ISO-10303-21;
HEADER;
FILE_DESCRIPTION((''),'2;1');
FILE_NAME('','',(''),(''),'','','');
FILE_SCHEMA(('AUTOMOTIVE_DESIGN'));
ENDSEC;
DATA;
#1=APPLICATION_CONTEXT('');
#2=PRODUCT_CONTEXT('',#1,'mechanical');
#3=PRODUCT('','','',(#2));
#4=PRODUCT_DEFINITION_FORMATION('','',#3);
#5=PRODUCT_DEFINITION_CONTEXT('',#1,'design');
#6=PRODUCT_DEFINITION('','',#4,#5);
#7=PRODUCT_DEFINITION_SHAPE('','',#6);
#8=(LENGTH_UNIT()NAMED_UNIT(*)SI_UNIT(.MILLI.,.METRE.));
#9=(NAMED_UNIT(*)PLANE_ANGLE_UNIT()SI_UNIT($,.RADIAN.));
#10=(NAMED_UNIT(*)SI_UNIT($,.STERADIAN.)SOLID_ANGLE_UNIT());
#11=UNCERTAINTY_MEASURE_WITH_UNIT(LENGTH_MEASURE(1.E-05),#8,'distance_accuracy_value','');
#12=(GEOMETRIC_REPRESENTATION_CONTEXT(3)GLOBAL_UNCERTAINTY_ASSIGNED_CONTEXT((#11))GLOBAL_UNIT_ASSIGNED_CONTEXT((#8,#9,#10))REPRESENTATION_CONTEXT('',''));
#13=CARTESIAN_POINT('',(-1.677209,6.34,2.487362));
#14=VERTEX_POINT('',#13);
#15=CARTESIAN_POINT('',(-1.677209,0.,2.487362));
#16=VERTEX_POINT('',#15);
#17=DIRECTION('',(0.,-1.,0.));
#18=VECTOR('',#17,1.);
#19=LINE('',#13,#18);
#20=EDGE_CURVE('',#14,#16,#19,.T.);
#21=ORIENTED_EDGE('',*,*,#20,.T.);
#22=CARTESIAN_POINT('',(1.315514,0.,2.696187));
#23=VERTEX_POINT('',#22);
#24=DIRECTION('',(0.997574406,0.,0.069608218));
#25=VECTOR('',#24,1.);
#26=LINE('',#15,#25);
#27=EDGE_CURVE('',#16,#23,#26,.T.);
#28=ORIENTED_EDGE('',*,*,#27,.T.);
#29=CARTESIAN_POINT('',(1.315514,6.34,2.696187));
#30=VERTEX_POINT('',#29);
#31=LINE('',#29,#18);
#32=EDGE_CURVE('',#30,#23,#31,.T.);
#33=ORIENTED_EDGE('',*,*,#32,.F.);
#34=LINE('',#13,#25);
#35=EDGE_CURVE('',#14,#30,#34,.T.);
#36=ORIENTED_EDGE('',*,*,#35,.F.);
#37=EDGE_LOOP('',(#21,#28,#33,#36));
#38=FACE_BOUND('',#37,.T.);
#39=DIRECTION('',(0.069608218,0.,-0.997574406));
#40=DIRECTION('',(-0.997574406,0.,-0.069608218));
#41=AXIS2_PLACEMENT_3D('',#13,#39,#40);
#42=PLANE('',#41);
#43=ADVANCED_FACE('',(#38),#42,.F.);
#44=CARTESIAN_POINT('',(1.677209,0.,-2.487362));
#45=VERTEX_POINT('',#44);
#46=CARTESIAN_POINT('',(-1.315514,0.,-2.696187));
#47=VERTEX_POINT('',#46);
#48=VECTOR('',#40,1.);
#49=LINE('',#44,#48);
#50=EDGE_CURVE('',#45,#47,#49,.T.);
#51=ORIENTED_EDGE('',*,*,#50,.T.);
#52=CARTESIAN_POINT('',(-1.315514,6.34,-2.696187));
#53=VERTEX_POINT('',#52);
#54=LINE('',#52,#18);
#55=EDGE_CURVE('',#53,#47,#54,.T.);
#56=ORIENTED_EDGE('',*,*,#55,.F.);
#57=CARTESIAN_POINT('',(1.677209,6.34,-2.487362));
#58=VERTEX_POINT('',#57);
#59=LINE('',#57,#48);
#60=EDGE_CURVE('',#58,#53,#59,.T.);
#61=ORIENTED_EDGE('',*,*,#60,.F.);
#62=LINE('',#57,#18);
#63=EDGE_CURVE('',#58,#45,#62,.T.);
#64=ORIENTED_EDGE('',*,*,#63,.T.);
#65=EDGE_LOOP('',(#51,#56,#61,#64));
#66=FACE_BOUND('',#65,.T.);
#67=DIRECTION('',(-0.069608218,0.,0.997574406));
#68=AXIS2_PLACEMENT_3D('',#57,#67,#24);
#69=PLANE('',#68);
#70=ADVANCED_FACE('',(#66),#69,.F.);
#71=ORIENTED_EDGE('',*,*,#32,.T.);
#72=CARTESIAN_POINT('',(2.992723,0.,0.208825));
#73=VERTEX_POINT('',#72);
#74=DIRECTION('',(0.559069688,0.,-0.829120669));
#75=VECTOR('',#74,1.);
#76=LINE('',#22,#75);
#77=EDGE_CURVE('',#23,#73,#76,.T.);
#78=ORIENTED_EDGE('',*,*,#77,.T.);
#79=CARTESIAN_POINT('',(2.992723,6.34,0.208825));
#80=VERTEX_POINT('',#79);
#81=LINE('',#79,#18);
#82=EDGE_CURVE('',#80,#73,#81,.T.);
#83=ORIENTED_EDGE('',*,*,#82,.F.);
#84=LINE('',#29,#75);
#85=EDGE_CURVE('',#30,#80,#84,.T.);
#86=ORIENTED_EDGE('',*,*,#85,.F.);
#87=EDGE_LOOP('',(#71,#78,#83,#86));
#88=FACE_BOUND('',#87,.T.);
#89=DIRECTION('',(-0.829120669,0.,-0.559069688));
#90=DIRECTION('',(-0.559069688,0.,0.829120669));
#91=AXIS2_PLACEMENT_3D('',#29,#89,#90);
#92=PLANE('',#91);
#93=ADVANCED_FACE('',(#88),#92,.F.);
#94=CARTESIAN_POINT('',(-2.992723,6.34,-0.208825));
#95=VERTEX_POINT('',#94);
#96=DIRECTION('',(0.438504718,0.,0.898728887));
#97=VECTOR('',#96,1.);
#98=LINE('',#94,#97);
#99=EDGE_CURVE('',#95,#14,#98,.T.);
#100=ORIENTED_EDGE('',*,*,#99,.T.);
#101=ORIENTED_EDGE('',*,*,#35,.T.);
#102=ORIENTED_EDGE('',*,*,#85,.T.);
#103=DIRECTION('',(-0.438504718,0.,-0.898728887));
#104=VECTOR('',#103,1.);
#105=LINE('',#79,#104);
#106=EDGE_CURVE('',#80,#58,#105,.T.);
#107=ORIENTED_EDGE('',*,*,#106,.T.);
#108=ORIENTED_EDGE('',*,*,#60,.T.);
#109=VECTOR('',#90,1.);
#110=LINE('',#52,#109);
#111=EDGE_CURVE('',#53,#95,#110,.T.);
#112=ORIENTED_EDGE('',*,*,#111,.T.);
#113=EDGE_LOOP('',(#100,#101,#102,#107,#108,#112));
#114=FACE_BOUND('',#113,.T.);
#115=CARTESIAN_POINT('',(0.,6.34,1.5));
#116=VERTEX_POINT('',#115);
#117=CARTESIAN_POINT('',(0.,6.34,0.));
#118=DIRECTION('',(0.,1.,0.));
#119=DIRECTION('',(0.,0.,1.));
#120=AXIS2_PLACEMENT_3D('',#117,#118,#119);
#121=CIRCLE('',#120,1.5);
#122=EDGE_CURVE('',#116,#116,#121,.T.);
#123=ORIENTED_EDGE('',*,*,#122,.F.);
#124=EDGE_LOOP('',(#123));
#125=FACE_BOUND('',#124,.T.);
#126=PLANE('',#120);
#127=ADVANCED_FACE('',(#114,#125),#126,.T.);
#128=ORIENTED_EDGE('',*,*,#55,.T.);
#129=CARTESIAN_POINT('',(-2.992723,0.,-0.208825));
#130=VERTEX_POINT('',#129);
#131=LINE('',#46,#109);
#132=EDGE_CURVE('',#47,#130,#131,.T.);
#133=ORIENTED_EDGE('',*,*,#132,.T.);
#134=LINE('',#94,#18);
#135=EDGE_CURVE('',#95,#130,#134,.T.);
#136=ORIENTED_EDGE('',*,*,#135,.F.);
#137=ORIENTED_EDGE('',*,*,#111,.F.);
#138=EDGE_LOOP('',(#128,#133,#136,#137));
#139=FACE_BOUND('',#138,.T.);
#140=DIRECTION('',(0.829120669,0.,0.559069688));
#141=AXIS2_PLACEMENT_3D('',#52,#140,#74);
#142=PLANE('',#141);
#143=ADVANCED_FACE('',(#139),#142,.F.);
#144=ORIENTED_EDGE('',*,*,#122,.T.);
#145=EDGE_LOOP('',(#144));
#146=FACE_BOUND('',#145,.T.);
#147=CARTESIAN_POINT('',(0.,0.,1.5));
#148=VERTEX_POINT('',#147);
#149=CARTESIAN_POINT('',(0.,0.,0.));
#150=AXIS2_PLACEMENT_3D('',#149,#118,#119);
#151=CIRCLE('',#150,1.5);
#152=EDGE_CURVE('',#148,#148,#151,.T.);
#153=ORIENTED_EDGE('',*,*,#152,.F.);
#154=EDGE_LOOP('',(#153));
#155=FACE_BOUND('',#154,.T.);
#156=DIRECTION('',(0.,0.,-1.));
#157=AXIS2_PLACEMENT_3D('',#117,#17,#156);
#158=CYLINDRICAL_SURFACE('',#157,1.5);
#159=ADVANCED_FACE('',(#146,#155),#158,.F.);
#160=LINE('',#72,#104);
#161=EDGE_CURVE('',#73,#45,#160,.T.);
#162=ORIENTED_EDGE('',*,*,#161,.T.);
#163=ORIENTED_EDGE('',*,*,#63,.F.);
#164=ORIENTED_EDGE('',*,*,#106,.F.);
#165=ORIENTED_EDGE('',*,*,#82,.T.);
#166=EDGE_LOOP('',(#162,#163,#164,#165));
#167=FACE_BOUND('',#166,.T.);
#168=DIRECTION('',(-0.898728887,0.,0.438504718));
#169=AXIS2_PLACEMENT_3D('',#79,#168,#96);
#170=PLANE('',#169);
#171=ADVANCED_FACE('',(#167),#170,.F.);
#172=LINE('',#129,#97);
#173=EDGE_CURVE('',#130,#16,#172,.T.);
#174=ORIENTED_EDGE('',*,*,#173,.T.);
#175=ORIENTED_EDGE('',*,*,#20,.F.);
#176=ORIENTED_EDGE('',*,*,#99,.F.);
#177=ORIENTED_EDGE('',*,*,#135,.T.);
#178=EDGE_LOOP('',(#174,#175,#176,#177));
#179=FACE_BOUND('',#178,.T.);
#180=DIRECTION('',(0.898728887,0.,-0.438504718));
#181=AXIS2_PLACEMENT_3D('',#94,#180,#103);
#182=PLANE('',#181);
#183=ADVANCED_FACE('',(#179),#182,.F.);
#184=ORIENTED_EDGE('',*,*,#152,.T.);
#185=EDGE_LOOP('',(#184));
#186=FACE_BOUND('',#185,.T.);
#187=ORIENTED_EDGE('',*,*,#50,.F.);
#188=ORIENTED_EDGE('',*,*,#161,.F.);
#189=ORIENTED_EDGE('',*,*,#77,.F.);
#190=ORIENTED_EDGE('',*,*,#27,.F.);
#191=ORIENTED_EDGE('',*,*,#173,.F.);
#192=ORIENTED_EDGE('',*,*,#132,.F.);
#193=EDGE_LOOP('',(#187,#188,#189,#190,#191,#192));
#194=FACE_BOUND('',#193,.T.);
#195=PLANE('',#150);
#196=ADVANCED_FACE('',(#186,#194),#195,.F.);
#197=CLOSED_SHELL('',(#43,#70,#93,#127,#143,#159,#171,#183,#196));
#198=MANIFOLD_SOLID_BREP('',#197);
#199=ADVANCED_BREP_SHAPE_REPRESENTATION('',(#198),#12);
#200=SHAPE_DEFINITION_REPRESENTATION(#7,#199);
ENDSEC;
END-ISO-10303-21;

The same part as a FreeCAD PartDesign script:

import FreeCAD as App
import Part
import Sketcher


def add_polygon(sketch, points):
    """Adds a closed chain of lines whose ends are joined by coincident constraints."""
    first, n = sketch.GeometryCount, len(points)
    for a, b in zip(points, points[1:] + points[:1]):
        sketch.addGeometry(Part.LineSegment(App.Vector(*a, 0), App.Vector(*b, 0)), False)
    for i in range(n):
        sketch.addConstraint(Sketcher.Constraint("Coincident", first + i, 2, first + (i + 1) % n, 1))

doc = App.newDocument("Part")
body = doc.addObject("PartDesign::Body", "Body")

# Sketch on XZ plane
sketch1 = doc.addObject("Sketcher::SketchObject", "Sketch")
body.addObject(sketch1)
sketch1.AttachmentSupport = (doc.XZ_Plane, [""])
sketch1.MapMode = "FlatFace"
add_polygon(sketch1, [(-3, -0.2), (-1.7, 2.5), (1.3, 2.7), (3, 0.2), (1.7, -2.5), (-1.3, -2.7)])  # lines 0-5
sketch1.addGeometry(Part.Circle(App.Vector(0, 0, 0), App.Vector(0, 0, 1), 1.5), False)  # 6
sketch1.addConstraint([
    Sketcher.Constraint("Coincident", 6, 3, -1, 1),
    Sketcher.Constraint("Symmetric", 0, 2, 3, 2, -1, 1),
    Sketcher.Constraint("Symmetric", 1, 2, 4, 2, -1, 1),
    Sketcher.Constraint("Symmetric", 2, 2, 5, 2, -1, 1),
    Sketcher.Constraint("Equal", 0, 1),
    Sketcher.Constraint("Equal", 1, 2),
    Sketcher.Constraint("Diameter", 6, 3.0),
    Sketcher.Constraint("Distance", 0, 3.0),
    Sketcher.Constraint("DistanceX", 0, 2, -1, 1, 1.677209),
    Sketcher.Constraint("DistanceX", 1, 2, 2, 2, 1.677209),
    Sketcher.Constraint("DistanceY", 3, 2, 1, 2, 5.183549),
])
pad1 = doc.addObject("PartDesign::Pad", "Pad")
body.addObject(pad1)
pad1.Profile = sketch1
pad1.Length = 6.34
pad1.Reversed = True

doc.recompute()
